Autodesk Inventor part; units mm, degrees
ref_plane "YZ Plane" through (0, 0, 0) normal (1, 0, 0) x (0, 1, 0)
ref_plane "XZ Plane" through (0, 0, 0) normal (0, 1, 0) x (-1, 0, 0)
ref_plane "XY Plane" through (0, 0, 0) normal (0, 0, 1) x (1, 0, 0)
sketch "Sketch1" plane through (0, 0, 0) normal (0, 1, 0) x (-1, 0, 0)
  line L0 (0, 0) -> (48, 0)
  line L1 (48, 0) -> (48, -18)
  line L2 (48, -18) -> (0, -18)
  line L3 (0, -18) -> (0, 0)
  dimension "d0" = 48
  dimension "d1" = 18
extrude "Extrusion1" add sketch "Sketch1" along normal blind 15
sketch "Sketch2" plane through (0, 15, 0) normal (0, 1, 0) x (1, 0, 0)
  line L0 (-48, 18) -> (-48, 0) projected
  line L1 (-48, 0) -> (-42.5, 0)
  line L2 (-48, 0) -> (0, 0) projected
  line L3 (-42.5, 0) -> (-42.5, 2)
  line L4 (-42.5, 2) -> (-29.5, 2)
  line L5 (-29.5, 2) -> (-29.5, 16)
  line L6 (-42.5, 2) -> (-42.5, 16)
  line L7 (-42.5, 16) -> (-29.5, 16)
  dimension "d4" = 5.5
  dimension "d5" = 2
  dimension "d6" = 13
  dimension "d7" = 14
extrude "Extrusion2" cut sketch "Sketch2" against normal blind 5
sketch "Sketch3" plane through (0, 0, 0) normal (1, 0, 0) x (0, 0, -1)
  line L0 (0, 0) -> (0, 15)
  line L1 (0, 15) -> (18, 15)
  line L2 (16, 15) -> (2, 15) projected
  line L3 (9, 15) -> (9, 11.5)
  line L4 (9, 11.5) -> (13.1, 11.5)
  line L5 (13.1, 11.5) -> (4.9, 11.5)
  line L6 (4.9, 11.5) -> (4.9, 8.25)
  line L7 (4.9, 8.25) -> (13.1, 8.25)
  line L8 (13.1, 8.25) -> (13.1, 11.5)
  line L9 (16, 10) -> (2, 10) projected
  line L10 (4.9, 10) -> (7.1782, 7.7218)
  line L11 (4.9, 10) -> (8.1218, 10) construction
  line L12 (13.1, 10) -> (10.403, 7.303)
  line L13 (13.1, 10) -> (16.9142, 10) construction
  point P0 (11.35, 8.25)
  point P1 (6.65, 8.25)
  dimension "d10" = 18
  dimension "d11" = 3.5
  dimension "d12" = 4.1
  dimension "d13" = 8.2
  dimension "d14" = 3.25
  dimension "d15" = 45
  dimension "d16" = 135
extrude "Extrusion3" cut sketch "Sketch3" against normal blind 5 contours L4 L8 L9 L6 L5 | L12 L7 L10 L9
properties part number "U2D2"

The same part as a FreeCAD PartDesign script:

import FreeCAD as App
import Part
import Sketcher

V = App.Vector


def add_polygon(sketch, points):
    """Adds a closed chain of lines whose ends are joined by coincident constraints."""
    first, n = sketch.GeometryCount, len(points)
    for a, b in zip(points, points[1:] + points[:1]):
        sketch.addGeometry(Part.LineSegment(App.Vector(*a, 0), App.Vector(*b, 0)), False)
    for i in range(n):
        sketch.addConstraint(Sketcher.Constraint("Coincident", first + i, 2, first + (i + 1) % n, 1))

doc = App.newDocument("Part")
body = doc.addObject("PartDesign::Body", "Body")

sketch1 = body.newObject("Sketcher::SketchObject", "Sketch")
sketch1.AttachmentSupport = (doc.getObject("XZ_Plane"), [""])
sketch1.MapMode = "FlatFace"
add_polygon(sketch1, [(-48, 0), (0, 0), (0, -18), (-48, -18)])
sketch1.addConstraint([
    Sketcher.Constraint("Horizontal", 0),
    Sketcher.Constraint("Vertical", 1),
    Sketcher.Constraint("Horizontal", 2),
    Sketcher.Constraint("Vertical", 3),
    Sketcher.Constraint("Coincident", 0, 2, -1, 1),
    Sketcher.Constraint("DistanceX", 0, 1, 0, 2, 48.0),
    Sketcher.Constraint("DistanceY", 1, 2, 1, 1, 18.0),
])
pad1 = body.newObject("PartDesign::Pad", "Pad")
pad1.Profile = sketch1
pad1.Length = 15
pad1.Reversed = True

sketch2 = body.newObject("Sketcher::SketchObject", "Sketch001")
sketch2.AttachmentSupport = (doc.getObject("XZ_Plane"), [""])
sketch2.MapMode = "FlatFace"
sketch2.AttachmentOffset = App.Placement(V(0, 0, -15), App.Rotation())
add_polygon(sketch2, [(-42, -16), (-42, -2), (-30, -2), (-30, -16)])
sketch2.addConstraint([
    Sketcher.Constraint("Vertical", 0),
    Sketcher.Constraint("Horizontal", 1),
    Sketcher.Constraint("Vertical", 2),
    Sketcher.Constraint("Horizontal", 3),
    Sketcher.Constraint("DistanceX", 1, 1, 1, 2, 13.0),
    Sketcher.Constraint("DistanceY", 0, 1, 0, 2, 14.0),
    Sketcher.Constraint("DistanceY", 0, 2, -1, 1, 2.0),
    Sketcher.Constraint("DistanceX", 0, 2, -1, 1, 42.5),
])
pocket1 = body.newObject("PartDesign::Pocket", "Pocket")
pocket1.Profile = sketch2
pocket1.Length = 5
pocket1.Reversed = True

sketch3 = body.newObject("Sketcher::SketchObject", "Sketch002")
sketch3.AttachmentSupport = (doc.getObject("YZ_Plane"), [""])
sketch3.MapMode = "FlatFace"
add_polygon(sketch3, [(11.5, -13.1), (11.5, -4.9), (10, -4.9), (8.2, -6.7), (8.2, -11.3), (10, -13.1)])
sketch3.addConstraint([
    Sketcher.Constraint("Vertical", 0),
    Sketcher.Constraint("Horizontal", 1),
    Sketcher.Constraint("Vertical", 3),
    Sketcher.Constraint("Horizontal", 5),
    Sketcher.Constraint("Perpendicular", 2, 4),
    Sketcher.Constraint("Vertical", 1, 2, 4, 2),
    Sketcher.Constraint("Equal", 2, 4),
    Sketcher.Constraint("DistanceY", 0, 1, 0, 2, 8.2),
    Sketcher.Constraint("DistanceX", 2, 2, 0, 2, 3.25),
    Sketcher.Constraint("DistanceX", 1, 2, 1, 1, 1.5),
    Sketcher.Constraint("DistanceX", -1, 1, 1, 2, 10.0),
    Sketcher.Constraint("DistanceY", 0, 2, -1, 1, 4.9),
])
pocket2 = body.newObject("PartDesign::Pocket", "Pocket001")
pocket2.Profile = sketch3
pocket2.Length = 5

doc.recompute()
